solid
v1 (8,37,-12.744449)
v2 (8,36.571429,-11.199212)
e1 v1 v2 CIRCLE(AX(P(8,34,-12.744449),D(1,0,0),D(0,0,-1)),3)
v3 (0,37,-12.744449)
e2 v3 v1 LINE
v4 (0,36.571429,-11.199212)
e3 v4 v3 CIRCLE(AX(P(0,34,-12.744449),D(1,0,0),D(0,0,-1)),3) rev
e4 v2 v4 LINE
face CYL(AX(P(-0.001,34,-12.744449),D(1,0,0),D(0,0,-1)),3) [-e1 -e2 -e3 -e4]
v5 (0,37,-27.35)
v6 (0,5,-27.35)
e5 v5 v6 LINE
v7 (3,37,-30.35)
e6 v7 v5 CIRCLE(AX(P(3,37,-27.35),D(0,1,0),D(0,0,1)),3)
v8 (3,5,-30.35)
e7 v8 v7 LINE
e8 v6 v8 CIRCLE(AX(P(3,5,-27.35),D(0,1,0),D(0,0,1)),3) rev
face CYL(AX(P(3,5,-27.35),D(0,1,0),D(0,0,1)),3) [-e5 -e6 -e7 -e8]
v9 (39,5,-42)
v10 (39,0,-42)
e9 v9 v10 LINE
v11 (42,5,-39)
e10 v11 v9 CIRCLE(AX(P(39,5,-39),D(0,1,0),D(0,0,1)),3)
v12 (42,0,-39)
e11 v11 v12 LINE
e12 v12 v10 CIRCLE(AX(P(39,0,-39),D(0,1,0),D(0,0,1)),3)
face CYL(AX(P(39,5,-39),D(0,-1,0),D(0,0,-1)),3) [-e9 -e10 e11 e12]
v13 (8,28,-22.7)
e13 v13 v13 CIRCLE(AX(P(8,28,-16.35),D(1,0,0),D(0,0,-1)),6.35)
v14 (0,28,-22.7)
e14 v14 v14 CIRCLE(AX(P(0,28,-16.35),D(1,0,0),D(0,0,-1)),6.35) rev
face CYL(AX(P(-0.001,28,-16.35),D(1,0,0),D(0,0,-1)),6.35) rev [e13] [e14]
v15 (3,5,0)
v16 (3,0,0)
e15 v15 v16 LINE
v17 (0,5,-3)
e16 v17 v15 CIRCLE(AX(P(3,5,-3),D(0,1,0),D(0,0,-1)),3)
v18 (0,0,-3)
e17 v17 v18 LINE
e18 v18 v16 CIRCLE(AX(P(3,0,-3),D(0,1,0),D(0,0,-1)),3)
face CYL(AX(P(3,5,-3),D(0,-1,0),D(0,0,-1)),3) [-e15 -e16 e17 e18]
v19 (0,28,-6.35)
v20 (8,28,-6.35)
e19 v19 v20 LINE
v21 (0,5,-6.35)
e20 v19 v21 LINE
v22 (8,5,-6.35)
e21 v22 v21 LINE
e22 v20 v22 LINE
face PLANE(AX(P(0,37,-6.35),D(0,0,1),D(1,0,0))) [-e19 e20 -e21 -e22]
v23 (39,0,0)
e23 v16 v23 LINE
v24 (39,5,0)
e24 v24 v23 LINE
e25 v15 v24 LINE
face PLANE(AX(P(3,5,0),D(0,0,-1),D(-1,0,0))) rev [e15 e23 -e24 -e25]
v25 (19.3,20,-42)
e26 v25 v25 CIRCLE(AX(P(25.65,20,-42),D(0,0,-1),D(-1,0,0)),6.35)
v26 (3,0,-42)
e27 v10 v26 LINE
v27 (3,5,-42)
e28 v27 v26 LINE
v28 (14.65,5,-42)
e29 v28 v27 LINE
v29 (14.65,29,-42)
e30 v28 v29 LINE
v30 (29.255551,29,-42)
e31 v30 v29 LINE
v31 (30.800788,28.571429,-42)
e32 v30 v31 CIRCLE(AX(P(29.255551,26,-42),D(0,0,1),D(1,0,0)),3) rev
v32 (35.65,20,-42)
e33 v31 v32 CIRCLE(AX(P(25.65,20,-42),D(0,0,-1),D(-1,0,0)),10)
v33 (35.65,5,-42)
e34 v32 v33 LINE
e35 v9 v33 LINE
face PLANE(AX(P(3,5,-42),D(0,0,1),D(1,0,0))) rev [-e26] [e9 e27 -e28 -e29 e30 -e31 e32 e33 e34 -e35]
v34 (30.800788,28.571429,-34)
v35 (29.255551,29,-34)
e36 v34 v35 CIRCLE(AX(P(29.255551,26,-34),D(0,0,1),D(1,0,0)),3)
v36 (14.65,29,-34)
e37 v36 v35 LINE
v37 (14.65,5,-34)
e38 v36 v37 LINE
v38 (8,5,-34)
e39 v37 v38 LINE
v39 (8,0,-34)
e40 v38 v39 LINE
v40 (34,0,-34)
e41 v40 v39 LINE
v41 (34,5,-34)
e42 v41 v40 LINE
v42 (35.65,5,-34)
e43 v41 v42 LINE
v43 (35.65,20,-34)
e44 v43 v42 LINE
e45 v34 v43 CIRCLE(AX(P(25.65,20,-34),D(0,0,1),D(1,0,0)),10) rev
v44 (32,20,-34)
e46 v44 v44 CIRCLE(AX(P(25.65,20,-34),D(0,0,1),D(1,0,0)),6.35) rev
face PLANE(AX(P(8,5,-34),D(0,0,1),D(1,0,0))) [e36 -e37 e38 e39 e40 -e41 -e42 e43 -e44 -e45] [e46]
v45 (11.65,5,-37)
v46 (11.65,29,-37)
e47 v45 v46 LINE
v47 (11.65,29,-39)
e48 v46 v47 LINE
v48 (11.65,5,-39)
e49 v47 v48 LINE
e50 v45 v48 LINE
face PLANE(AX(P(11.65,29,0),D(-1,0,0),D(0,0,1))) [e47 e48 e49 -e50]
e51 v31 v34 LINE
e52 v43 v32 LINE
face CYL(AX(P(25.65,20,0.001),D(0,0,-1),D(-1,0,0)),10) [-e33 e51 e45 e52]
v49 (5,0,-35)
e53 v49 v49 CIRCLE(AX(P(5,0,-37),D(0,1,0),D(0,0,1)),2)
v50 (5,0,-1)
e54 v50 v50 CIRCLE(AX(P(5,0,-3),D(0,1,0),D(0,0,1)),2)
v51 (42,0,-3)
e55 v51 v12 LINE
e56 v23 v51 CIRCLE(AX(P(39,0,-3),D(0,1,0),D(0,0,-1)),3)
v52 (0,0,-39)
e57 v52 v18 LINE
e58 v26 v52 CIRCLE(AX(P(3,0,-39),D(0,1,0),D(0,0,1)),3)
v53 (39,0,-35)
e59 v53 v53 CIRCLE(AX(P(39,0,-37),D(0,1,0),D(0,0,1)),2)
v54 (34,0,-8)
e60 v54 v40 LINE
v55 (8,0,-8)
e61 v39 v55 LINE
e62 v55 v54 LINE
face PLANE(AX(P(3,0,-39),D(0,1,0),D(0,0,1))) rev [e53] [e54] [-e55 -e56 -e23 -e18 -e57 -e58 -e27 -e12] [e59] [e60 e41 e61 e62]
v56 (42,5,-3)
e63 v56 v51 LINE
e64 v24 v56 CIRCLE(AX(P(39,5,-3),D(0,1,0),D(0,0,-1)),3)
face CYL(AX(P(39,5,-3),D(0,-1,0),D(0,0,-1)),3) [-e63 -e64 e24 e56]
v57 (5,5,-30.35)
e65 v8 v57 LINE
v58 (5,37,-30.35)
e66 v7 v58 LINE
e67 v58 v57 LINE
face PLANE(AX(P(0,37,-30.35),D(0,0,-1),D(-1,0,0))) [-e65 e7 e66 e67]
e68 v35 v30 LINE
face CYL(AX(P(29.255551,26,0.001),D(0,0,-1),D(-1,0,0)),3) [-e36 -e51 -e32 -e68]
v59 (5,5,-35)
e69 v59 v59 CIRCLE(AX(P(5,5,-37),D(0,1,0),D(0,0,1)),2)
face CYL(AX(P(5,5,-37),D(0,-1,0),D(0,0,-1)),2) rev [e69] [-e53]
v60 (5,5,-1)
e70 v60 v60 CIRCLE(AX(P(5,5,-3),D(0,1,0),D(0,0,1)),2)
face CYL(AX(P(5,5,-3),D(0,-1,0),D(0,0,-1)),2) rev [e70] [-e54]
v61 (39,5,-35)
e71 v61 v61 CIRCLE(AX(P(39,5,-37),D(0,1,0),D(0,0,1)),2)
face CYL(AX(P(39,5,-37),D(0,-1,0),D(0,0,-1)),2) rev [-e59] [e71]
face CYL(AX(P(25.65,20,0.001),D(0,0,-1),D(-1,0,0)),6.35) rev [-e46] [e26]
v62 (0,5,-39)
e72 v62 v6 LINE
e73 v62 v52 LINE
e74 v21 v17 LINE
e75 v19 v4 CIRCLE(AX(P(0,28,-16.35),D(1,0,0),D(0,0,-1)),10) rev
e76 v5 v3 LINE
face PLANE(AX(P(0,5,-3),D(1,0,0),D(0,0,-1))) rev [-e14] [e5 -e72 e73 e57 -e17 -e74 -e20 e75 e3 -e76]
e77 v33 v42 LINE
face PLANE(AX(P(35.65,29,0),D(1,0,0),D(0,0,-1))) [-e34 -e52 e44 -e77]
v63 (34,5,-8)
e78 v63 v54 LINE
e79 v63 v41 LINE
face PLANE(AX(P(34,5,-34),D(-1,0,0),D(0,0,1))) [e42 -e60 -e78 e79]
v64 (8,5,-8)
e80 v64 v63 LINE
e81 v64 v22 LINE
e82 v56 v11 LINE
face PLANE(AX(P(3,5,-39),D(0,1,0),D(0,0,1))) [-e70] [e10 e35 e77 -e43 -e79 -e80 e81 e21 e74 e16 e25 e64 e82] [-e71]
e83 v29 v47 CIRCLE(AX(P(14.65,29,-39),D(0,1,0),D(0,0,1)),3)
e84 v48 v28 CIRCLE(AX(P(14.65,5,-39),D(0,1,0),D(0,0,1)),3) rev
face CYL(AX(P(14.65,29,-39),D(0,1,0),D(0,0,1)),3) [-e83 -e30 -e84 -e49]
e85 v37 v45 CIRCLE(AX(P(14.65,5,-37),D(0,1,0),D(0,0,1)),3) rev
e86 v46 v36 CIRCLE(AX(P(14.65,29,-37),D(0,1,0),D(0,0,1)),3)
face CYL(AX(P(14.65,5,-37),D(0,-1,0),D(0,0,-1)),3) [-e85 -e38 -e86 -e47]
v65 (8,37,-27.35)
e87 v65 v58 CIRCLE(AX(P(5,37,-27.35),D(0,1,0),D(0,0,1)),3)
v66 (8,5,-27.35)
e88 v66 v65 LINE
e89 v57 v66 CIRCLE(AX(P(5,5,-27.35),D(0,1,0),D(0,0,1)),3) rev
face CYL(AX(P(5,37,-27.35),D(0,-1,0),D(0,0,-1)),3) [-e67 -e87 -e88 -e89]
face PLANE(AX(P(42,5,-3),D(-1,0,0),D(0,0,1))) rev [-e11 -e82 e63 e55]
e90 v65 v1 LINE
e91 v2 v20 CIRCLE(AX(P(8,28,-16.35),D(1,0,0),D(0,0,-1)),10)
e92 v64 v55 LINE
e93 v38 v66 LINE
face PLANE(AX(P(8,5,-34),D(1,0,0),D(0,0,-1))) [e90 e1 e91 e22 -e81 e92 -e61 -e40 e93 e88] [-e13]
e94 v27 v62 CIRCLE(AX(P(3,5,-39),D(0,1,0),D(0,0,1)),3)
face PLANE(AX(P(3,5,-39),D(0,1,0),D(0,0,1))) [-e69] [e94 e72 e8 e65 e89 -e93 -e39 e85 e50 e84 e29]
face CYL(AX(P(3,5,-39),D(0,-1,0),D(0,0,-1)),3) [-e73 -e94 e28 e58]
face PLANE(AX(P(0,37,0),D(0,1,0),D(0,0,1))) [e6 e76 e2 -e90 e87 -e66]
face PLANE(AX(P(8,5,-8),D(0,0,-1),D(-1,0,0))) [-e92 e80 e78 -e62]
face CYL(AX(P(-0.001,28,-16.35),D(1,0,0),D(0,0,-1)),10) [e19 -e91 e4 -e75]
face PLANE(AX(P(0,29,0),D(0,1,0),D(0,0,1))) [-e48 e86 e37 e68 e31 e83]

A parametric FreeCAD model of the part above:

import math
import FreeCAD as App
import Part
import Sketcher
Q = App.Units.Quantity


def edges_at(feature, points):
    """Names of the edges that pass closest to the given points."""
    edges = feature.Shape.Edges
    near = lambda p: min(range(len(edges)), key=lambda i: edges[i].distToShape(Part.Vertex(*p))[0])
    return sorted({f"Edge{near(p) + 1}" for p in points})

doc = App.newDocument("Part")
body = doc.addObject("PartDesign::Body", "Body")

# Sketch on XZ plane
sketch1 = doc.addObject("Sketcher::SketchObject", "Sketch")
body.addObject(sketch1)
sketch1.AttachmentSupport = (doc.XZ_Plane, [""])
sketch1.MapMode = "FlatFace"
sketch1.addGeometry([
    Part.LineSegment(App.Vector(3, 0, 0), App.Vector(39, 0, 0)),  # 0
    Part.ArcOfCircle(Part.Circle(App.Vector(39, -3, 0), App.Vector(0, 0, 1), 3), math.radians(0), math.radians(90)),  # 1
    Part.LineSegment(App.Vector(42, -3, 0), App.Vector(42, -39, 0)),  # 2
    Part.ArcOfCircle(Part.Circle(App.Vector(39, -39, 0), App.Vector(0, 0, 1), 3), math.radians(-90), math.radians(0)),  # 3
    Part.LineSegment(App.Vector(39, -42, 0), App.Vector(3, -42, 0)),  # 4
    Part.ArcOfCircle(Part.Circle(App.Vector(3, -39, 0), App.Vector(0, 0, 1), 3), math.radians(180), math.radians(270)),  # 5
    Part.LineSegment(App.Vector(0, -39, 0), App.Vector(0, -3, 0)),  # 6
    Part.ArcOfCircle(Part.Circle(App.Vector(3, -3, 0), App.Vector(0, 0, 1), 3), math.radians(90), math.radians(180)),  # 7
    Part.Circle(App.Vector(5, -3, 0), App.Vector(0, 0, 1), 2),  # 8
    Part.LineSegment(App.Vector(34, -8, 0), App.Vector(8, -8, 0)),  # 9
    Part.LineSegment(App.Vector(8, -8, 0), App.Vector(8, -34, 0)),  # 10
    Part.LineSegment(App.Vector(8, -34, 0), App.Vector(34, -34, 0)),  # 11
    Part.LineSegment(App.Vector(34, -34, 0), App.Vector(34, -8, 0)),  # 12
    Part.Circle(App.Vector(5, -37, 0), App.Vector(0, 0, 1), 2),  # 13
    Part.Circle(App.Vector(39, -37, 0), App.Vector(0, 0, 1), 2),  # 14
], False)
sketch1.addConstraint([
    Sketcher.Constraint("Tangent", 0, 2, 1, 2),
    Sketcher.Constraint("Tangent", 1, 1, 2, 1),
    Sketcher.Constraint("Tangent", 2, 2, 3, 2),
    Sketcher.Constraint("Tangent", 3, 1, 4, 1),
    Sketcher.Constraint("Tangent", 4, 2, 5, 2),
    Sketcher.Constraint("Tangent", 5, 1, 6, 1),
    Sketcher.Constraint("Tangent", 6, 2, 7, 2),
    Sketcher.Constraint("Tangent", 7, 1, 0, 1),
    Sketcher.Constraint("Coincident", 9, 2, 10, 1),
    Sketcher.Constraint("Coincident", 10, 2, 11, 1),
    Sketcher.Constraint("Coincident", 11, 2, 12, 1),
    Sketcher.Constraint("Coincident", 12, 2, 9, 1),
    Sketcher.Constraint("Horizontal", 0),
    Sketcher.Constraint("Vertical", 2),
    Sketcher.Constraint("Horizontal", 4),
    Sketcher.Constraint("Vertical", 6),
    Sketcher.Constraint("Horizontal", 9),
    Sketcher.Constraint("Vertical", 10),
    Sketcher.Constraint("Horizontal", 11),
    Sketcher.Constraint("Vertical", 12),
    Sketcher.Constraint("Equal", 1, 3),
    Sketcher.Constraint("Equal", 3, 5),
    Sketcher.Constraint("Equal", 5, 7),
    Sketcher.Constraint("Equal", 8, 13),
    Sketcher.Constraint("Equal", 13, 14),
    Sketcher.Constraint("PointOnObject", 0, 2, -1),
    Sketcher.Constraint("PointOnObject", 5, 1, -2),
    Sketcher.Constraint("Horizontal", 7, 3, 8, 3),
    Sketcher.Constraint("Horizontal", 13, 3, 14, 3),
    Sketcher.Constraint("Vertical", 8, 3, 13, 3),
    Sketcher.Constraint("Vertical", 3, 3, 14, 3),
    Sketcher.Constraint("Equal", 4, 2),
    Sketcher.Constraint("Equal", 11, 10),
    Sketcher.Constraint("Diameter", 8, Q("4 mm")),
    Sketcher.Constraint("Radius", 1, Q("3 mm")),
    Sketcher.Constraint("DistanceX", 0, 1, 0, 2, Q("36 mm")),
    Sketcher.Constraint("DistanceX", 9, 2, 9, 1, Q("26 mm")),
    Sketcher.Constraint("DistanceX", -1, 1, 8, 3, Q("5 mm")),
    Sketcher.Constraint("DistanceY", 13, 3, -1, 1, Q("37 mm")),
    Sketcher.Constraint("DistanceX", -1, 1, 9, 2, Q("8 mm")),
    Sketcher.Constraint("DistanceY", 9, 2, -1, 1, Q("8 mm")),
])
pad1 = doc.addObject("PartDesign::Pad", "Pad")
body.addObject(pad1)
pad1.Profile = sketch1
pad1.Length = 5
pad1.Reversed = True

# Sketch on XZ plane
sketch2 = doc.addObject("Sketcher::SketchObject", "Sketch001")
body.addObject(sketch2)
sketch2.AttachmentSupport = (doc.XZ_Plane, [""])
sketch2.MapMode = "FlatFace"
sketch2.AttachmentOffset = App.Placement(App.Vector(0, 0, -5), App.Rotation())
sketch2.addGeometry([
    Part.LineSegment(App.Vector(35.65, -34, 0), App.Vector(35.65, -42, 0)),
    Part.LineSegment(App.Vector(35.65, -42, 0), App.Vector(11.65, -42, 0)),
    Part.LineSegment(App.Vector(11.65, -42, 0), App.Vector(11.65, -34, 0)),
    Part.LineSegment(App.Vector(11.65, -34, 0), App.Vector(35.65, -34, 0)),
], False)
sketch2.addConstraint([
    Sketcher.Constraint("Coincident", 0, 2, 1, 1),
    Sketcher.Constraint("Coincident", 1, 2, 2, 1),
    Sketcher.Constraint("Coincident", 2, 2, 3, 1),
    Sketcher.Constraint("Coincident", 3, 2, 0, 1),
    Sketcher.Constraint("Vertical", 0),
    Sketcher.Constraint("Horizontal", 1),
    Sketcher.Constraint("Vertical", 2),
    Sketcher.Constraint("Horizontal", 3),
    Sketcher.Constraint("DistanceX", 1, 2, 1, 1, Q("24 mm")),
    Sketcher.Constraint("DistanceY", 0, 2, 0, 1, Q("8 mm")),
    Sketcher.Constraint("DistanceY", 0, 2, -1, 1, Q("42 mm")),
    Sketcher.Constraint("DistanceX", -1, 1, 0, 2, Q("35.65 mm")),
])
pad2 = doc.addObject("PartDesign::Pad", "Pad001")
body.addObject(pad2)
pad2.Profile = sketch2
pad2.Length = 24
pad2.Reversed = True

# Sketch on XZ plane
sketch3 = doc.addObject("Sketcher::SketchObject", "Sketch002")
body.addObject(sketch3)
sketch3.AttachmentSupport = (doc.XZ_Plane, [""])
sketch3.MapMode = "FlatFace"
sketch3.AttachmentOffset = App.Placement(App.Vector(0, 0, -5), App.Rotation())
sketch3.addGeometry([
    Part.LineSegment(App.Vector(8, -30.35, 0), App.Vector(0, -30.35, 0)),
    Part.LineSegment(App.Vector(0, -30.35, 0), App.Vector(0, -6.35, 0)),
    Part.LineSegment(App.Vector(0, -6.35, 0), App.Vector(8, -6.35, 0)),
    Part.LineSegment(App.Vector(8, -6.35, 0), App.Vector(8, -30.35, 0)),
], False)
sketch3.addConstraint([
    Sketcher.Constraint("Coincident", 0, 2, 1, 1),
    Sketcher.Constraint("Coincident", 1, 2, 2, 1),
    Sketcher.Constraint("Coincident", 2, 2, 3, 1),
    Sketcher.Constraint("Coincident", 3, 2, 0, 1),
    Sketcher.Constraint("Horizontal", 0),
    Sketcher.Constraint("Vertical", 1),
    Sketcher.Constraint("Horizontal", 2),
    Sketcher.Constraint("Vertical", 3),
    Sketcher.Constraint("PointOnObject", 0, 2, -2),
    Sketcher.Constraint("DistanceX", 0, 2, 0, 1, Q("8 mm")),
    Sketcher.Constraint("DistanceY", 1, 1, 1, 2, Q("24 mm")),
    Sketcher.Constraint("DistanceY", 0, 2, -1, 1, Q("30.35 mm")),
])
pad3 = doc.addObject("PartDesign::Pad", "Pad002")
body.addObject(pad3)
pad3.Profile = sketch3
pad3.Length = 32
pad3.Reversed = True

# Sketch on XY plane
sketch4 = doc.addObject("Sketcher::SketchObject", "Sketch003")
body.addObject(sketch4)
sketch4.AttachmentSupport = (doc.XY_Plane, [""])
sketch4.MapMode = "FlatFace"
sketch4.AttachmentOffset = App.Placement(App.Vector(0, 0, -42), App.Rotation())
sketch4.addGeometry(Part.Circle(App.Vector(25.65, 20, 0), App.Vector(0, 0, 1), 6.35), False)
sketch4.addConstraint([
    Sketcher.Constraint("Diameter", 0, Q("12.7 mm")),
    Sketcher.Constraint("DistanceY", -1, 1, 0, 3, Q("20 mm")),
    Sketcher.Constraint("DistanceX", -1, 1, 0, 3, Q("25.65 mm")),
])
pocket1 = doc.addObject("PartDesign::Pocket", "Pocket")
body.addObject(pocket1)
pocket1.Profile = sketch4
pocket1.Type = "UpToFirst"
pocket1.Reversed = True

# Sketch on XY plane
sketch5 = doc.addObject("Sketcher::SketchObject", "Sketch004")
body.addObject(sketch5)
sketch5.AttachmentSupport = (doc.XY_Plane, [""])
sketch5.MapMode = "FlatFace"
sketch5.AttachmentOffset = App.Placement(App.Vector(0, 0, -42), App.Rotation())
sketch5.addGeometry([
    Part.LineSegment(App.Vector(30.008899, 29, 0), App.Vector(35.65, 29, 0)),
    Part.LineSegment(App.Vector(35.65, 29, 0), App.Vector(35.65, 20, 0)),
    Part.ArcOfCircle(Part.Circle(App.Vector(25.65, 20, 0), App.Vector(0, 0, 1), 10), math.radians(0), math.radians(64.158067)),
], False)
sketch5.addConstraint([
    Sketcher.Constraint("Coincident", 0, 2, 1, 1),
    Sketcher.Constraint("Tangent", 1, 2, 2, 1),
    Sketcher.Constraint("Coincident", 2, 2, 0, 1),
    Sketcher.Constraint("Horizontal", 0),
    Sketcher.Constraint("Vertical", 1),
    Sketcher.Constraint("Radius", 2, Q("10 mm")),
    Sketcher.Constraint("DistanceY", 1, 2, 1, 1, Q("9 mm")),
    Sketcher.Constraint("DistanceY", -1, 1, 2, 3, Q("20 mm")),
    Sketcher.Constraint("DistanceX", -1, 1, 2, 3, Q("25.65 mm")),
])
pocket2 = doc.addObject("PartDesign::Pocket", "Pocket001")
body.addObject(pocket2)
pocket2.Profile = sketch5
pocket2.Type = "UpToFirst"
pocket2.Reversed = True

# Sketch on YZ plane
sketch6 = doc.addObject("Sketcher::SketchObject", "Sketch005")
body.addObject(sketch6)
sketch6.AttachmentSupport = (doc.YZ_Plane, [""])
sketch6.MapMode = "FlatFace"
sketch6.AttachmentOffset = App.Placement(App.Vector(0, 0, 8), App.Rotation())
sketch6.addGeometry(Part.Circle(App.Vector(28, -16.35, 0), App.Vector(0, 0, 1), 6.35), False)
sketch6.addConstraint([
    Sketcher.Constraint("Diameter", 0, Q("12.7 mm")),
    Sketcher.Constraint("DistanceX", -1, 1, 0, 3, Q("28 mm")),
    Sketcher.Constraint("DistanceY", 0, 3, -1, 1, Q("16.35 mm")),
])
pocket3 = doc.addObject("PartDesign::Pocket", "Pocket002")
body.addObject(pocket3)
pocket3.Profile = sketch6
pocket3.Type = "UpToFirst"

# Sketch on YZ plane
sketch7 = doc.addObject("Sketcher::SketchObject", "Sketch006")
body.addObject(sketch7)
sketch7.AttachmentSupport = (doc.YZ_Plane, [""])
sketch7.MapMode = "FlatFace"
sketch7.AttachmentOffset = App.Placement(App.Vector(0, 0, 8), App.Rotation())
sketch7.addGeometry([
    Part.LineSegment(App.Vector(37, -11.991101, 0), App.Vector(37, -6.35, 0)),
    Part.LineSegment(App.Vector(37, -6.35, 0), App.Vector(28, -6.35, 0)),
    Part.ArcOfCircle(Part.Circle(App.Vector(28, -16.35, 0), App.Vector(0, 0, 1), 10), math.radians(25.841933), math.radians(90)),
], False)
sketch7.addConstraint([
    Sketcher.Constraint("Coincident", 0, 2, 1, 1),
    Sketcher.Constraint("Tangent", 1, 2, 2, 2),
    Sketcher.Constraint("Coincident", 2, 1, 0, 1),
    Sketcher.Constraint("Vertical", 0),
    Sketcher.Constraint("Horizontal", 1),
    Sketcher.Constraint("Radius", 2, Q("10 mm")),
    Sketcher.Constraint("DistanceX", 1, 2, 1, 1, Q("9 mm")),
    Sketcher.Constraint("DistanceX", -1, 1, 2, 3, Q("28 mm")),
    Sketcher.Constraint("DistanceY", 2, 3, -1, 1, Q("16.35 mm")),
])
pocket4 = doc.addObject("PartDesign::Pocket", "Pocket003")
body.addObject(pocket4)
pocket4.Profile = sketch7
pocket4.Type = "UpToFirst"
doc.recompute()

fillet = doc.addObject("PartDesign::Fillet", "Fillet")
body.addObject(fillet)
fillet.Base = (pocket4, edges_at(pocket4, [
    (4, 37, -11.991),
    (11.65, 17, -42),
    (11.65, 17, -34),
    (8, 21, -30.35),
    (0, 21, -30.35),
    (30.009, 29, -38),
]))
fillet.Radius = 3

doc.recompute()
